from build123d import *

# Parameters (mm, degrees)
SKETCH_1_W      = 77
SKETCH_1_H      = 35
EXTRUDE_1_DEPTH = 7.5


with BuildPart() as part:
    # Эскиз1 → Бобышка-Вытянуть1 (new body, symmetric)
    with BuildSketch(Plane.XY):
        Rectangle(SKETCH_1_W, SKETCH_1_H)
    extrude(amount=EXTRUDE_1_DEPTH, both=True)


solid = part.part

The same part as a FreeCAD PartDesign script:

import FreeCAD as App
import Part
import Sketcher

V = App.Vector
Q = App.Units.Quantity

doc = App.newDocument("Part")
params = doc.addObject("Spreadsheet::Sheet", "Params")
for row, (alias, value) in enumerate([
    ("sketch1_width", "77 mm"),
    ("sketch1_height", "35 mm"),
    ("pad1_length", "15 mm"),
], start=1):
    params.set(f"A{row}", alias)
    params.set(f"B{row}", "=" + value)
    params.setAlias(f"B{row}", alias)

body = doc.addObject("PartDesign::Body", "Body")

# Sketch on XY plane
sketch1 = body.newObject("Sketcher::SketchObject", "Sketch")
sketch1.AttachmentSupport = (doc.getObject("XY_Plane"), [""])
sketch1.MapMode = "FlatFace"
sketch1.addGeometry([
    Part.LineSegment(V(-38, 18, 0), V(-38, -18, 0)),
    Part.LineSegment(V(-38, -18, 0), V(38, -18, 0)),
    Part.LineSegment(V(38, -18, 0), V(38, 18, 0)),
    Part.LineSegment(V(38, 18, 0), V(-38, 18, 0)),
], False)
sketch1.addConstraint([
    Sketcher.Constraint("Coincident", 0, 2, 1, 1),
    Sketcher.Constraint("Coincident", 1, 2, 2, 1),
    Sketcher.Constraint("Coincident", 2, 2, 3, 1),
    Sketcher.Constraint("Coincident", 3, 2, 0, 1),
    Sketcher.Constraint("Vertical", 0),
    Sketcher.Constraint("Horizontal", 1),
    Sketcher.Constraint("Vertical", 2),
    Sketcher.Constraint("Horizontal", 3),
    Sketcher.Constraint("Symmetric", 0, 2, 2, 2, -1, 1),
    Sketcher.Constraint("DistanceX", 1, 1, 1, 2, Q("77 mm")),
    Sketcher.Constraint("DistanceY", 0, 2, 0, 1, Q("35 mm")),
])
sketch1.setExpression("Constraints[9]", "Params.sketch1_width")
sketch1.setExpression("Constraints[10]", "Params.sketch1_height")
pad1 = body.newObject("PartDesign::Pad", "Pad")
pad1.Profile = sketch1
pad1.setExpression("Length", "Params.pad1_length")
pad1.Midplane = True

doc.recompute()
